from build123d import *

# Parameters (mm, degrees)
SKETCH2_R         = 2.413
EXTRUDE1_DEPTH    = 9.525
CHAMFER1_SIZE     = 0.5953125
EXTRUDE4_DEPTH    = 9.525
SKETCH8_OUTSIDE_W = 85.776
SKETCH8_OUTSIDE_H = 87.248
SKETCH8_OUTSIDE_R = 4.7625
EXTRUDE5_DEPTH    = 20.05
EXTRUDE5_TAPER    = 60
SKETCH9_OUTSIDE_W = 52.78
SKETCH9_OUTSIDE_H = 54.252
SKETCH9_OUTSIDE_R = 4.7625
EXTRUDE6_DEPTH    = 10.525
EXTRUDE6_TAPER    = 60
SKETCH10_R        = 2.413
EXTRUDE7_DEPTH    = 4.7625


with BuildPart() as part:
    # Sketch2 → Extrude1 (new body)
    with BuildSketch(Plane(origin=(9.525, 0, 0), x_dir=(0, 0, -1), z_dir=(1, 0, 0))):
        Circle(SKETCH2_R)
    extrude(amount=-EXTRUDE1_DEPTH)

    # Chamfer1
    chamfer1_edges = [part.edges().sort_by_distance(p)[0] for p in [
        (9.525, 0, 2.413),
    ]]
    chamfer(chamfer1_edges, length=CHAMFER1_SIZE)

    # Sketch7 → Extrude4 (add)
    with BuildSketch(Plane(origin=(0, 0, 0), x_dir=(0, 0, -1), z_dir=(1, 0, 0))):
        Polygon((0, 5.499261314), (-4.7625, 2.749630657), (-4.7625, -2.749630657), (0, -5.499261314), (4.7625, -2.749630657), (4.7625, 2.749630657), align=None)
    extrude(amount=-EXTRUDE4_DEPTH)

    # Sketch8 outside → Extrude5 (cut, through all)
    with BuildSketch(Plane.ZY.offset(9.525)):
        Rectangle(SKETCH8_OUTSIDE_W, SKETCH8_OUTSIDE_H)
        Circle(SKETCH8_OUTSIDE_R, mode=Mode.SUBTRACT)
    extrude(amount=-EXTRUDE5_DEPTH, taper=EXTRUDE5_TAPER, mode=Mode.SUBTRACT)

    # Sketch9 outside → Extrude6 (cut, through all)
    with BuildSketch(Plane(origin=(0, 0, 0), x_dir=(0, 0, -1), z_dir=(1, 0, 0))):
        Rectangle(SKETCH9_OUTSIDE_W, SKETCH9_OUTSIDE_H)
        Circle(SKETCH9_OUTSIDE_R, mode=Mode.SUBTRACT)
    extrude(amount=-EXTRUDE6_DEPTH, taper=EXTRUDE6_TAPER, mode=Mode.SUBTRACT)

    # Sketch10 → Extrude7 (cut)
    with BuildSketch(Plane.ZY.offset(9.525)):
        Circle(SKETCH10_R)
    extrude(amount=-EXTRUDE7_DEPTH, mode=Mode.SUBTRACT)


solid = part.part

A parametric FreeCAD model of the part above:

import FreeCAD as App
import Part
import Sketcher
Q = App.Units.Quantity


def edges_at(feature, points):
    """Names of the edges that pass closest to the given points."""
    edges = feature.Shape.Edges
    near = lambda p: min(range(len(edges)), key=lambda i: edges[i].distToShape(Part.Vertex(*p))[0])
    return sorted({f"Edge{near(p) + 1}" for p in points})

doc = App.newDocument("Part")
body = doc.addObject("PartDesign::Body", "Body")

# Sketch on YZ plane
sketch1 = doc.addObject("Sketcher::SketchObject", "Sketch")
body.addObject(sketch1)
sketch1.AttachmentSupport = (doc.YZ_Plane, [""])
sketch1.MapMode = "FlatFace"
sketch1.AttachmentOffset = App.Placement(App.Vector(0, 0, 0.375 * 25.4), App.Rotation())
sketch1.addGeometry(Part.Circle(App.Vector(0, 0, 0), App.Vector(0, 0, 1), 2.4), False)
sketch1.addConstraint(Sketcher.Constraint("Coincident", 0, 3, -1, 1))
sketch1.addConstraint(Sketcher.Constraint("Diameter", 0, Q("0.19 in")))
pad1 = doc.addObject("PartDesign::Pad", "Pad")
body.addObject(pad1)
pad1.Profile = sketch1
pad1.Length = Q("0.375 in")
pad1.Reversed = True
doc.recompute()

chamfer = doc.addObject("PartDesign::Chamfer", "Chamfer")
body.addObject(chamfer)
chamfer.Base = (pad1, edges_at(pad1, [(9.525, 0, 2.413)]))
chamfer.Size = 0.595313

# Sketch on YZ plane
sketch2 = doc.addObject("Sketcher::SketchObject", "Sketch001")
body.addObject(sketch2)
sketch2.AttachmentSupport = (doc.YZ_Plane, [""])
sketch2.MapMode = "FlatFace"
sketch2.addGeometry(Part.LineSegment(App.Vector(5, 0, 0), App.Vector(3, 5, 0)), False)
sketch2.addGeometry(Part.LineSegment(App.Vector(3, 5, 0), App.Vector(-3, 5, 0)), False)
sketch2.addGeometry(Part.LineSegment(App.Vector(-3, 5, 0), App.Vector(-5, 0, 0)), False)
sketch2.addGeometry(Part.LineSegment(App.Vector(-5, 0, 0), App.Vector(-3, -5, 0)), False)
sketch2.addGeometry(Part.LineSegment(App.Vector(-3, -5, 0), App.Vector(3, -5, 0)), False)
sketch2.addGeometry(Part.LineSegment(App.Vector(3, -5, 0), App.Vector(5, 0, 0)), False)
sketch2.addConstraint(Sketcher.Constraint("Coincident", 0, 2, 1, 1))
sketch2.addConstraint(Sketcher.Constraint("Coincident", 1, 2, 2, 1))
sketch2.addConstraint(Sketcher.Constraint("Coincident", 2, 2, 3, 1))
sketch2.addConstraint(Sketcher.Constraint("Coincident", 3, 2, 4, 1))
sketch2.addConstraint(Sketcher.Constraint("Coincident", 4, 2, 5, 1))
sketch2.addConstraint(Sketcher.Constraint("Coincident", 5, 2, 0, 1))
sketch2.addConstraint(Sketcher.Constraint("Horizontal", 1))
sketch2.addConstraint(Sketcher.Constraint("Horizontal", 4))
sketch2.addConstraint(Sketcher.Constraint("Symmetric", 0, 2, 3, 2, -1, 1))
sketch2.addConstraint(Sketcher.Constraint("Symmetric", 2, 2, 5, 2, -1, 1))
sketch2.addConstraint(Sketcher.Constraint("PointOnObject", 2, 2, -1))
sketch2.addConstraint(Sketcher.Constraint("Parallel", 2, 5))
sketch2.addConstraint(Sketcher.Constraint("Vertical", 1, 2, 3, 2))
sketch2.addConstraint(Sketcher.Constraint("Angle", 0, Q("120 deg")))
sketch2.addConstraint(Sketcher.Constraint("DistanceY", -1, 1, 0, 2, Q("0.1875 in")))
sketch2.addConstraint(Sketcher.Constraint("DistanceX", 1, 2, 1, 1, 5.499261))
pad2 = doc.addObject("PartDesign::Pad", "Pad001")
body.addObject(pad2)
pad2.Profile = sketch2
pad2.Length = Q("0.375 in")
pad2.Reversed = True

# Sketch on YZ plane
sketch3 = doc.addObject("Sketcher::SketchObject", "Sketch002")
body.addObject(sketch3)
sketch3.AttachmentSupport = (doc.YZ_Plane, [""])
sketch3.MapMode = "FlatFace"
sketch3.AttachmentOffset = App.Placement(App.Vector(0, 0, -0.375 * 25.4), App.Rotation())
sketch3.addGeometry(Part.LineSegment(App.Vector(43.6, -42.9, 0), App.Vector(-43.6, -42.9, 0)), False)
sketch3.addGeometry(Part.LineSegment(App.Vector(-43.6, -42.9, 0), App.Vector(-43.6, 42.9, 0)), False)
sketch3.addGeometry(Part.LineSegment(App.Vector(-43.6, 42.9, 0), App.Vector(43.6, 42.9, 0)), False)
sketch3.addGeometry(Part.LineSegment(App.Vector(43.6, 42.9, 0), App.Vector(43.6, -42.9, 0)), False)
sketch3.addGeometry(Part.Circle(App.Vector(0, 0, 0), App.Vector(0, 0, 1), 4.8), False)
sketch3.addConstraint(Sketcher.Constraint("Coincident", 0, 2, 1, 1))
sketch3.addConstraint(Sketcher.Constraint("Coincident", 1, 2, 2, 1))
sketch3.addConstraint(Sketcher.Constraint("Coincident", 2, 2, 3, 1))
sketch3.addConstraint(Sketcher.Constraint("Coincident", 3, 2, 0, 1))
sketch3.addConstraint(Sketcher.Constraint("Horizontal", 0))
sketch3.addConstraint(Sketcher.Constraint("Vertical", 1))
sketch3.addConstraint(Sketcher.Constraint("Horizontal", 2))
sketch3.addConstraint(Sketcher.Constraint("Vertical", 3))
sketch3.addConstraint(Sketcher.Constraint("Coincident", 4, 3, -1, 1))
sketch3.addConstraint(Sketcher.Constraint("Symmetric", 0, 2, 2, 2, -1, 1))
sketch3.addConstraint(Sketcher.Constraint("Diameter", 4, Q("0.375 in")))
sketch3.addConstraint(Sketcher.Constraint("DistanceX", 0, 2, 0, 1, 87.248))
sketch3.addConstraint(Sketcher.Constraint("DistanceY", 1, 1, 1, 2, 85.776))
pocket1 = doc.addObject("PartDesign::Pocket", "Pocket")
body.addObject(pocket1)
pocket1.Profile = sketch3
pocket1.Length = 20.05
pocket1.Reversed = True
pocket1.TaperAngle = 60

# Sketch on YZ plane
sketch4 = doc.addObject("Sketcher::SketchObject", "Sketch003")
body.addObject(sketch4)
sketch4.AttachmentSupport = (doc.YZ_Plane, [""])
sketch4.MapMode = "FlatFace"
sketch4.addGeometry(Part.LineSegment(App.Vector(27.1, 26.4, 0), App.Vector(-27.1, 26.4, 0)), False)
sketch4.addGeometry(Part.LineSegment(App.Vector(-27.1, 26.4, 0), App.Vector(-27.1, -26.4, 0)), False)
sketch4.addGeometry(Part.LineSegment(App.Vector(-27.1, -26.4, 0), App.Vector(27.1, -26.4, 0)), False)
sketch4.addGeometry(Part.LineSegment(App.Vector(27.1, -26.4, 0), App.Vector(27.1, 26.4, 0)), False)
sketch4.addGeometry(Part.Circle(App.Vector(0, 0, 0), App.Vector(0, 0, 1), 4.8), False)
sketch4.addConstraint(Sketcher.Constraint("Coincident", 0, 2, 1, 1))
sketch4.addConstraint(Sketcher.Constraint("Coincident", 1, 2, 2, 1))
sketch4.addConstraint(Sketcher.Constraint("Coincident", 2, 2, 3, 1))
sketch4.addConstraint(Sketcher.Constraint("Coincident", 3, 2, 0, 1))
sketch4.addConstraint(Sketcher.Constraint("Horizontal", 0))
sketch4.addConstraint(Sketcher.Constraint("Vertical", 1))
sketch4.addConstraint(Sketcher.Constraint("Horizontal", 2))
sketch4.addConstraint(Sketcher.Constraint("Vertical", 3))
sketch4.addConstraint(Sketcher.Constraint("Coincident", 4, 3, -1, 1))
sketch4.addConstraint(Sketcher.Constraint("Symmetric", 0, 2, 2, 2, -1, 1))
sketch4.addConstraint(Sketcher.Constraint("Diameter", 4, Q("0.375 in")))
sketch4.addConstraint(Sketcher.Constraint("DistanceX", 0, 2, 0, 1, 54.252))
sketch4.addConstraint(Sketcher.Constraint("DistanceY", 1, 2, 1, 1, 52.78))
pocket2 = doc.addObject("PartDesign::Pocket", "Pocket001")
body.addObject(pocket2)
pocket2.Profile = sketch4
pocket2.Length = 10.525
pocket2.TaperAngle = 60

# Sketch on YZ plane
sketch5 = doc.addObject("Sketcher::SketchObject", "Sketch004")
body.addObject(sketch5)
sketch5.AttachmentSupport = (doc.YZ_Plane, [""])
sketch5.MapMode = "FlatFace"
sketch5.AttachmentOffset = App.Placement(App.Vector(0, 0, -0.375 * 25.4), App.Rotation())
sketch5.addGeometry(Part.Circle(App.Vector(0, 0, 0), App.Vector(0, 0, 1), 2.4), False)
sketch5.addConstraint(Sketcher.Constraint("Coincident", 0, 3, -1, 1))
sketch5.addConstraint(Sketcher.Constraint("Diameter", 0, Q("0.19 in")))
pocket3 = doc.addObject("PartDesign::Pocket", "Pocket002")
body.addObject(pocket3)
pocket3.Profile = sketch5
pocket3.Length = Q("0.1875 in")
pocket3.Reversed = True

doc.recompute()
